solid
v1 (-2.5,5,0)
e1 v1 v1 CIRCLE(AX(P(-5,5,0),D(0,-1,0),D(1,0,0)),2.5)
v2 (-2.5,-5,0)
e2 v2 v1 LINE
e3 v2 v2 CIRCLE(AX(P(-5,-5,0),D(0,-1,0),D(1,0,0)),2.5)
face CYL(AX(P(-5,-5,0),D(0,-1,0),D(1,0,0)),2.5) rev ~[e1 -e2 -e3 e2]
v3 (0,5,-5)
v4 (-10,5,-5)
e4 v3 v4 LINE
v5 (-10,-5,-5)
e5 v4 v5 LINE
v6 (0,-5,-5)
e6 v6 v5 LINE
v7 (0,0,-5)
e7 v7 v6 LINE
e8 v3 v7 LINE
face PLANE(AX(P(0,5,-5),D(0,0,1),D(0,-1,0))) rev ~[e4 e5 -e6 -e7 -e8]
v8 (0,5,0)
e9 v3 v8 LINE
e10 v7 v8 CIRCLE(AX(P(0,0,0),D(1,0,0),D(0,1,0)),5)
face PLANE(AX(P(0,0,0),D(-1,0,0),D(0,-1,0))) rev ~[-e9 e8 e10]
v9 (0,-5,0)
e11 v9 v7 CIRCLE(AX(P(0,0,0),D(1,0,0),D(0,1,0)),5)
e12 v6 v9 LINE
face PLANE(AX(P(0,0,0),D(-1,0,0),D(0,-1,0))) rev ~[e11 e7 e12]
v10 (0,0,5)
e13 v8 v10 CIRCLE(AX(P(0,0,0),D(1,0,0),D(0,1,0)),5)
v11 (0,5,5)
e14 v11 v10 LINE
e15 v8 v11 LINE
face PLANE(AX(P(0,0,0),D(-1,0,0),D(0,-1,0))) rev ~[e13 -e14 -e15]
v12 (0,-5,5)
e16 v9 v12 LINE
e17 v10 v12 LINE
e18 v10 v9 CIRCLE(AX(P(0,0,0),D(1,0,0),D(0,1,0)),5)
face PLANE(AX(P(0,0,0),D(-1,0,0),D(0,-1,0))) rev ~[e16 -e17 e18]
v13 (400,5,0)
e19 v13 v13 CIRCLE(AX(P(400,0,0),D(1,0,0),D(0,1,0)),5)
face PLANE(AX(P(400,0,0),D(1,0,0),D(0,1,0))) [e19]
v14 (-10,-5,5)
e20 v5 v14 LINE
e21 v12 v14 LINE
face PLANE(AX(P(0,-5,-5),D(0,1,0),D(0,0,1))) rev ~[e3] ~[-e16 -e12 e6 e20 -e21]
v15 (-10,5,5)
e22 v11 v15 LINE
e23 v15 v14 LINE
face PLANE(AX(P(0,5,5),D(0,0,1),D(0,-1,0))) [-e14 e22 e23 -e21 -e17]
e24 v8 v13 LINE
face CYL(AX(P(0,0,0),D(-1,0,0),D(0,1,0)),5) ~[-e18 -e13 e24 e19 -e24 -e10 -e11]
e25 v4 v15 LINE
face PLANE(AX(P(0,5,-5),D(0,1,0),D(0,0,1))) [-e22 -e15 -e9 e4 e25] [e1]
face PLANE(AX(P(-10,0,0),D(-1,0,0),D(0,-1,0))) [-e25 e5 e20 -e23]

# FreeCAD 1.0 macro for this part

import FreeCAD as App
import Part
import Sketcher

V = App.Vector


def add_polygon(sketch, points):
    """Adds a closed chain of lines whose ends are joined by coincident constraints."""
    first, n = sketch.GeometryCount, len(points)
    for a, b in zip(points, points[1:] + points[:1]):
        sketch.addGeometry(Part.LineSegment(App.Vector(*a, 0), App.Vector(*b, 0)), False)
    for i in range(n):
        sketch.addConstraint(Sketcher.Constraint("Coincident", first + i, 2, first + (i + 1) % n, 1))

doc = App.newDocument("Part")
body = doc.addObject("PartDesign::Body", "Body")

# Sketch on YZ plane
sketch1 = doc.addObject("Sketcher::SketchObject", "Sketch")
body.addObject(sketch1)
sketch1.AttachmentSupport = (doc.YZ_Plane, [""])
sketch1.MapMode = "FlatFace"
sketch1.addGeometry(Part.Circle(V(0, 0, 0), V(0, 0, 1), 5), False)
sketch1.addConstraint(Sketcher.Constraint("Coincident", 0, 3, -1, 1))
sketch1.addConstraint(Sketcher.Constraint("Diameter", 0, 10.0))
pad1 = doc.addObject("PartDesign::Pad", "Pad")
body.addObject(pad1)
pad1.Profile = sketch1
pad1.Length = 400

# Sketch on YZ plane
sketch2 = doc.addObject("Sketcher::SketchObject", "Sketch001")
body.addObject(sketch2)
sketch2.AttachmentSupport = (doc.YZ_Plane, [""])
sketch2.MapMode = "FlatFace"
add_polygon(sketch2, [(5, 5), (5, -5), (-5, -5), (-5, 5)])  # lines 0-3
sketch2.addConstraint(Sketcher.Constraint("Vertical", 0))
sketch2.addConstraint(Sketcher.Constraint("Horizontal", 1))
sketch2.addConstraint(Sketcher.Constraint("Vertical", 2))
sketch2.addConstraint(Sketcher.Constraint("Horizontal", 3))
sketch2.addConstraint(Sketcher.Constraint("Symmetric", 0, 2, 2, 2, -1, 1))
sketch2.addConstraint(Sketcher.Constraint("Equal", 3, 0))
sketch2.addConstraint(Sketcher.Constraint("DistanceX", 1, 2, 1, 1, 10.0))
pad2 = doc.addObject("PartDesign::Pad", "Pad001")
body.addObject(pad2)
pad2.Profile = sketch2
pad2.Length = 10
pad2.Reversed = True

# Sketch on XZ plane
sketch3 = doc.addObject("Sketcher::SketchObject", "Sketch002")
body.addObject(sketch3)
sketch3.AttachmentSupport = (doc.XZ_Plane, [""])
sketch3.MapMode = "FlatFace"
sketch3.AttachmentOffset = App.Placement(V(0, 0, 5), App.Rotation())
sketch3.addGeometry(Part.Circle(V(-5, 0, 0), V(0, 0, 1), 2.5), False)
sketch3.addConstraint(Sketcher.Constraint("PointOnObject", 0, 3, -1))
sketch3.addConstraint(Sketcher.Constraint("Diameter", 0, 5.0))
sketch3.addConstraint(Sketcher.Constraint("DistanceX", 0, 3, -1, 1, 5.0))
pocket1 = doc.addObject("PartDesign::Pocket", "Pocket")
body.addObject(pocket1)
pocket1.Profile = sketch3
pocket1.Length = 25

doc.recompute()
